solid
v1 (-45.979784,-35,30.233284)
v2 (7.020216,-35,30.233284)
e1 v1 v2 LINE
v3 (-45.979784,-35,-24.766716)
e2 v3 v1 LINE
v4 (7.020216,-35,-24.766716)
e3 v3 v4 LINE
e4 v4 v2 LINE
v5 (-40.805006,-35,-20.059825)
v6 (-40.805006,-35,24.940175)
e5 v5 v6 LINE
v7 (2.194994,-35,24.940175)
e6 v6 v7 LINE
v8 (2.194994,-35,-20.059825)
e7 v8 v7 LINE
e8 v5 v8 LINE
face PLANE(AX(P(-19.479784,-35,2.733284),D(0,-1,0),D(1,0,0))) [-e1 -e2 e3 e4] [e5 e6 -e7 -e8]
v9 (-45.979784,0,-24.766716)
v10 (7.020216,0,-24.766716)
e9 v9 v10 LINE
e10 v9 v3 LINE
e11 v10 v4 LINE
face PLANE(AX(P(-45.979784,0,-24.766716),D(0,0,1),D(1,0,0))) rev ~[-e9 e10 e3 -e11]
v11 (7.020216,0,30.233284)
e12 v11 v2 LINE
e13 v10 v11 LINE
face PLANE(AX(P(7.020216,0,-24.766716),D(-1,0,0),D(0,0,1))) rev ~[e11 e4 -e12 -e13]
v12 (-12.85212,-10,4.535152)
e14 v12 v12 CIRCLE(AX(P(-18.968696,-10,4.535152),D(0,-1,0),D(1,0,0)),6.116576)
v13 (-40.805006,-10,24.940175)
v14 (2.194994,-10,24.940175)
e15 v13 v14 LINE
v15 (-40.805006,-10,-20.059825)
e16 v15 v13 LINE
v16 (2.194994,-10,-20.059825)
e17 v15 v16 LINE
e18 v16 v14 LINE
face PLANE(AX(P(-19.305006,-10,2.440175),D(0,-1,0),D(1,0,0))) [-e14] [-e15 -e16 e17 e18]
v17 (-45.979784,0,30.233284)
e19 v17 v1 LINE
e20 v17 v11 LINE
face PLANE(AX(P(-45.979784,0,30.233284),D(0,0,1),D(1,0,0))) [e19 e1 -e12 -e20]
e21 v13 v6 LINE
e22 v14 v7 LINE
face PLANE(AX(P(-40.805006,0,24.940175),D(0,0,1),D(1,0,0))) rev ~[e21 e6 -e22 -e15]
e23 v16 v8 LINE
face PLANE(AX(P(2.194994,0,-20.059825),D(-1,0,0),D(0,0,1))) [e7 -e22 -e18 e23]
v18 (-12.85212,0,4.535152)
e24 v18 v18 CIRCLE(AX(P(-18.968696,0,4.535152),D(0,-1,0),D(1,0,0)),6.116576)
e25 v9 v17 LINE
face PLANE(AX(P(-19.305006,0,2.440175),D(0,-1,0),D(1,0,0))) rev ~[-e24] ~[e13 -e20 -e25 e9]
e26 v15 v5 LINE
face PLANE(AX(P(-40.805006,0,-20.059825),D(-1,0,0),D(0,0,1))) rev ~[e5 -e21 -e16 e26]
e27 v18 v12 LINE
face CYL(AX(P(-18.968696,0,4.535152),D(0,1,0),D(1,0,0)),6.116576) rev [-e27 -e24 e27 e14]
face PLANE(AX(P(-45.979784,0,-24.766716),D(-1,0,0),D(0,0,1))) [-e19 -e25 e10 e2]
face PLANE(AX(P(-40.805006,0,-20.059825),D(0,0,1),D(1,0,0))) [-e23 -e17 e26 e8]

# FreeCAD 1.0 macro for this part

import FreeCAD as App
import Part
import Sketcher


def add_polygon(sketch, points):
    """Adds a closed chain of lines whose ends are joined by coincident constraints."""
    first, n = sketch.GeometryCount, len(points)
    for a, b in zip(points, points[1:] + points[:1]):
        sketch.addGeometry(Part.LineSegment(App.Vector(*a, 0), App.Vector(*b, 0)), False)
    for i in range(n):
        sketch.addConstraint(Sketcher.Constraint("Coincident", first + i, 2, first + (i + 1) % n, 1))

doc = App.newDocument("Part")
body = doc.addObject("PartDesign::Body", "Body")

sketch1 = body.newObject("Sketcher::SketchObject", "Sketch")
sketch1.AttachmentSupport = (doc.getObject("XZ_Plane"), [""])
sketch1.MapMode = "FlatFace"
add_polygon(sketch1, [(-46, 30), (-46, -25), (7, -25), (7, 30)])
add_polygon(sketch1, [(2, -20), (-41, -20), (-41, 25), (2, 25)])
sketch1.addConstraint([
    Sketcher.Constraint("Vertical", 0),
    Sketcher.Constraint("Horizontal", 1),
    Sketcher.Constraint("Vertical", 2),
    Sketcher.Constraint("Horizontal", 3),
    Sketcher.Constraint("Horizontal", 4),
    Sketcher.Constraint("Vertical", 5),
    Sketcher.Constraint("Horizontal", 6),
    Sketcher.Constraint("Vertical", 7),
    Sketcher.Constraint("DistanceX", 1, 1, 1, 2, 53.0),
    Sketcher.Constraint("DistanceX", 4, 2, 4, 1, 43.0),
    Sketcher.Constraint("DistanceY", 0, 2, 0, 1, 55.0),
    Sketcher.Constraint("DistanceY", 5, 1, 5, 2, 45.0),
    Sketcher.Constraint("DistanceX", 0, 2, 4, 2, 5.174778),
    Sketcher.Constraint("DistanceY", 0, 2, 4, 2, 4.706891),
    Sketcher.Constraint("DistanceX", 0, 2, -1, 1, 45.979784),
    Sketcher.Constraint("DistanceY", 0, 2, -1, 1, 24.766716),
])
pad1 = body.newObject("PartDesign::Pad", "Pad")
pad1.Profile = sketch1
pad1.Length = 35

sketch2 = body.newObject("Sketcher::SketchObject", "Sketch001")
sketch2.AttachmentSupport = (doc.getObject("XZ_Plane"), [""])
sketch2.MapMode = "FlatFace"
add_polygon(sketch2, [(-41, 25), (-41, -20), (2, -20), (2, 25)])
sketch2.addGeometry(Part.Circle(App.Vector(-19, 5, 0), App.Vector(0, 0, 1), 6), False)
sketch2.addConstraint([
    Sketcher.Constraint("Vertical", 0),
    Sketcher.Constraint("Horizontal", 1),
    Sketcher.Constraint("Vertical", 2),
    Sketcher.Constraint("Horizontal", 3),
    Sketcher.Constraint("DistanceX", 1, 1, 1, 2, 43.0),
    Sketcher.Constraint("DistanceY", 0, 2, 0, 1, 45.0),
    Sketcher.Constraint("Diameter", 4, 12.233152),
    Sketcher.Constraint("DistanceX", 0, 2, 4, 3, 21.83631),
    Sketcher.Constraint("DistanceX", 4, 3, -1, 1, 18.968696),
    Sketcher.Constraint("DistanceY", -1, 1, 4, 3, 4.535152),
    Sketcher.Constraint("DistanceY", 0, 2, -1, 1, 20.059825),
])
pad2 = body.newObject("PartDesign::Pad", "Pad001")
pad2.Profile = sketch2
pad2.Length = 10

doc.recompute()
